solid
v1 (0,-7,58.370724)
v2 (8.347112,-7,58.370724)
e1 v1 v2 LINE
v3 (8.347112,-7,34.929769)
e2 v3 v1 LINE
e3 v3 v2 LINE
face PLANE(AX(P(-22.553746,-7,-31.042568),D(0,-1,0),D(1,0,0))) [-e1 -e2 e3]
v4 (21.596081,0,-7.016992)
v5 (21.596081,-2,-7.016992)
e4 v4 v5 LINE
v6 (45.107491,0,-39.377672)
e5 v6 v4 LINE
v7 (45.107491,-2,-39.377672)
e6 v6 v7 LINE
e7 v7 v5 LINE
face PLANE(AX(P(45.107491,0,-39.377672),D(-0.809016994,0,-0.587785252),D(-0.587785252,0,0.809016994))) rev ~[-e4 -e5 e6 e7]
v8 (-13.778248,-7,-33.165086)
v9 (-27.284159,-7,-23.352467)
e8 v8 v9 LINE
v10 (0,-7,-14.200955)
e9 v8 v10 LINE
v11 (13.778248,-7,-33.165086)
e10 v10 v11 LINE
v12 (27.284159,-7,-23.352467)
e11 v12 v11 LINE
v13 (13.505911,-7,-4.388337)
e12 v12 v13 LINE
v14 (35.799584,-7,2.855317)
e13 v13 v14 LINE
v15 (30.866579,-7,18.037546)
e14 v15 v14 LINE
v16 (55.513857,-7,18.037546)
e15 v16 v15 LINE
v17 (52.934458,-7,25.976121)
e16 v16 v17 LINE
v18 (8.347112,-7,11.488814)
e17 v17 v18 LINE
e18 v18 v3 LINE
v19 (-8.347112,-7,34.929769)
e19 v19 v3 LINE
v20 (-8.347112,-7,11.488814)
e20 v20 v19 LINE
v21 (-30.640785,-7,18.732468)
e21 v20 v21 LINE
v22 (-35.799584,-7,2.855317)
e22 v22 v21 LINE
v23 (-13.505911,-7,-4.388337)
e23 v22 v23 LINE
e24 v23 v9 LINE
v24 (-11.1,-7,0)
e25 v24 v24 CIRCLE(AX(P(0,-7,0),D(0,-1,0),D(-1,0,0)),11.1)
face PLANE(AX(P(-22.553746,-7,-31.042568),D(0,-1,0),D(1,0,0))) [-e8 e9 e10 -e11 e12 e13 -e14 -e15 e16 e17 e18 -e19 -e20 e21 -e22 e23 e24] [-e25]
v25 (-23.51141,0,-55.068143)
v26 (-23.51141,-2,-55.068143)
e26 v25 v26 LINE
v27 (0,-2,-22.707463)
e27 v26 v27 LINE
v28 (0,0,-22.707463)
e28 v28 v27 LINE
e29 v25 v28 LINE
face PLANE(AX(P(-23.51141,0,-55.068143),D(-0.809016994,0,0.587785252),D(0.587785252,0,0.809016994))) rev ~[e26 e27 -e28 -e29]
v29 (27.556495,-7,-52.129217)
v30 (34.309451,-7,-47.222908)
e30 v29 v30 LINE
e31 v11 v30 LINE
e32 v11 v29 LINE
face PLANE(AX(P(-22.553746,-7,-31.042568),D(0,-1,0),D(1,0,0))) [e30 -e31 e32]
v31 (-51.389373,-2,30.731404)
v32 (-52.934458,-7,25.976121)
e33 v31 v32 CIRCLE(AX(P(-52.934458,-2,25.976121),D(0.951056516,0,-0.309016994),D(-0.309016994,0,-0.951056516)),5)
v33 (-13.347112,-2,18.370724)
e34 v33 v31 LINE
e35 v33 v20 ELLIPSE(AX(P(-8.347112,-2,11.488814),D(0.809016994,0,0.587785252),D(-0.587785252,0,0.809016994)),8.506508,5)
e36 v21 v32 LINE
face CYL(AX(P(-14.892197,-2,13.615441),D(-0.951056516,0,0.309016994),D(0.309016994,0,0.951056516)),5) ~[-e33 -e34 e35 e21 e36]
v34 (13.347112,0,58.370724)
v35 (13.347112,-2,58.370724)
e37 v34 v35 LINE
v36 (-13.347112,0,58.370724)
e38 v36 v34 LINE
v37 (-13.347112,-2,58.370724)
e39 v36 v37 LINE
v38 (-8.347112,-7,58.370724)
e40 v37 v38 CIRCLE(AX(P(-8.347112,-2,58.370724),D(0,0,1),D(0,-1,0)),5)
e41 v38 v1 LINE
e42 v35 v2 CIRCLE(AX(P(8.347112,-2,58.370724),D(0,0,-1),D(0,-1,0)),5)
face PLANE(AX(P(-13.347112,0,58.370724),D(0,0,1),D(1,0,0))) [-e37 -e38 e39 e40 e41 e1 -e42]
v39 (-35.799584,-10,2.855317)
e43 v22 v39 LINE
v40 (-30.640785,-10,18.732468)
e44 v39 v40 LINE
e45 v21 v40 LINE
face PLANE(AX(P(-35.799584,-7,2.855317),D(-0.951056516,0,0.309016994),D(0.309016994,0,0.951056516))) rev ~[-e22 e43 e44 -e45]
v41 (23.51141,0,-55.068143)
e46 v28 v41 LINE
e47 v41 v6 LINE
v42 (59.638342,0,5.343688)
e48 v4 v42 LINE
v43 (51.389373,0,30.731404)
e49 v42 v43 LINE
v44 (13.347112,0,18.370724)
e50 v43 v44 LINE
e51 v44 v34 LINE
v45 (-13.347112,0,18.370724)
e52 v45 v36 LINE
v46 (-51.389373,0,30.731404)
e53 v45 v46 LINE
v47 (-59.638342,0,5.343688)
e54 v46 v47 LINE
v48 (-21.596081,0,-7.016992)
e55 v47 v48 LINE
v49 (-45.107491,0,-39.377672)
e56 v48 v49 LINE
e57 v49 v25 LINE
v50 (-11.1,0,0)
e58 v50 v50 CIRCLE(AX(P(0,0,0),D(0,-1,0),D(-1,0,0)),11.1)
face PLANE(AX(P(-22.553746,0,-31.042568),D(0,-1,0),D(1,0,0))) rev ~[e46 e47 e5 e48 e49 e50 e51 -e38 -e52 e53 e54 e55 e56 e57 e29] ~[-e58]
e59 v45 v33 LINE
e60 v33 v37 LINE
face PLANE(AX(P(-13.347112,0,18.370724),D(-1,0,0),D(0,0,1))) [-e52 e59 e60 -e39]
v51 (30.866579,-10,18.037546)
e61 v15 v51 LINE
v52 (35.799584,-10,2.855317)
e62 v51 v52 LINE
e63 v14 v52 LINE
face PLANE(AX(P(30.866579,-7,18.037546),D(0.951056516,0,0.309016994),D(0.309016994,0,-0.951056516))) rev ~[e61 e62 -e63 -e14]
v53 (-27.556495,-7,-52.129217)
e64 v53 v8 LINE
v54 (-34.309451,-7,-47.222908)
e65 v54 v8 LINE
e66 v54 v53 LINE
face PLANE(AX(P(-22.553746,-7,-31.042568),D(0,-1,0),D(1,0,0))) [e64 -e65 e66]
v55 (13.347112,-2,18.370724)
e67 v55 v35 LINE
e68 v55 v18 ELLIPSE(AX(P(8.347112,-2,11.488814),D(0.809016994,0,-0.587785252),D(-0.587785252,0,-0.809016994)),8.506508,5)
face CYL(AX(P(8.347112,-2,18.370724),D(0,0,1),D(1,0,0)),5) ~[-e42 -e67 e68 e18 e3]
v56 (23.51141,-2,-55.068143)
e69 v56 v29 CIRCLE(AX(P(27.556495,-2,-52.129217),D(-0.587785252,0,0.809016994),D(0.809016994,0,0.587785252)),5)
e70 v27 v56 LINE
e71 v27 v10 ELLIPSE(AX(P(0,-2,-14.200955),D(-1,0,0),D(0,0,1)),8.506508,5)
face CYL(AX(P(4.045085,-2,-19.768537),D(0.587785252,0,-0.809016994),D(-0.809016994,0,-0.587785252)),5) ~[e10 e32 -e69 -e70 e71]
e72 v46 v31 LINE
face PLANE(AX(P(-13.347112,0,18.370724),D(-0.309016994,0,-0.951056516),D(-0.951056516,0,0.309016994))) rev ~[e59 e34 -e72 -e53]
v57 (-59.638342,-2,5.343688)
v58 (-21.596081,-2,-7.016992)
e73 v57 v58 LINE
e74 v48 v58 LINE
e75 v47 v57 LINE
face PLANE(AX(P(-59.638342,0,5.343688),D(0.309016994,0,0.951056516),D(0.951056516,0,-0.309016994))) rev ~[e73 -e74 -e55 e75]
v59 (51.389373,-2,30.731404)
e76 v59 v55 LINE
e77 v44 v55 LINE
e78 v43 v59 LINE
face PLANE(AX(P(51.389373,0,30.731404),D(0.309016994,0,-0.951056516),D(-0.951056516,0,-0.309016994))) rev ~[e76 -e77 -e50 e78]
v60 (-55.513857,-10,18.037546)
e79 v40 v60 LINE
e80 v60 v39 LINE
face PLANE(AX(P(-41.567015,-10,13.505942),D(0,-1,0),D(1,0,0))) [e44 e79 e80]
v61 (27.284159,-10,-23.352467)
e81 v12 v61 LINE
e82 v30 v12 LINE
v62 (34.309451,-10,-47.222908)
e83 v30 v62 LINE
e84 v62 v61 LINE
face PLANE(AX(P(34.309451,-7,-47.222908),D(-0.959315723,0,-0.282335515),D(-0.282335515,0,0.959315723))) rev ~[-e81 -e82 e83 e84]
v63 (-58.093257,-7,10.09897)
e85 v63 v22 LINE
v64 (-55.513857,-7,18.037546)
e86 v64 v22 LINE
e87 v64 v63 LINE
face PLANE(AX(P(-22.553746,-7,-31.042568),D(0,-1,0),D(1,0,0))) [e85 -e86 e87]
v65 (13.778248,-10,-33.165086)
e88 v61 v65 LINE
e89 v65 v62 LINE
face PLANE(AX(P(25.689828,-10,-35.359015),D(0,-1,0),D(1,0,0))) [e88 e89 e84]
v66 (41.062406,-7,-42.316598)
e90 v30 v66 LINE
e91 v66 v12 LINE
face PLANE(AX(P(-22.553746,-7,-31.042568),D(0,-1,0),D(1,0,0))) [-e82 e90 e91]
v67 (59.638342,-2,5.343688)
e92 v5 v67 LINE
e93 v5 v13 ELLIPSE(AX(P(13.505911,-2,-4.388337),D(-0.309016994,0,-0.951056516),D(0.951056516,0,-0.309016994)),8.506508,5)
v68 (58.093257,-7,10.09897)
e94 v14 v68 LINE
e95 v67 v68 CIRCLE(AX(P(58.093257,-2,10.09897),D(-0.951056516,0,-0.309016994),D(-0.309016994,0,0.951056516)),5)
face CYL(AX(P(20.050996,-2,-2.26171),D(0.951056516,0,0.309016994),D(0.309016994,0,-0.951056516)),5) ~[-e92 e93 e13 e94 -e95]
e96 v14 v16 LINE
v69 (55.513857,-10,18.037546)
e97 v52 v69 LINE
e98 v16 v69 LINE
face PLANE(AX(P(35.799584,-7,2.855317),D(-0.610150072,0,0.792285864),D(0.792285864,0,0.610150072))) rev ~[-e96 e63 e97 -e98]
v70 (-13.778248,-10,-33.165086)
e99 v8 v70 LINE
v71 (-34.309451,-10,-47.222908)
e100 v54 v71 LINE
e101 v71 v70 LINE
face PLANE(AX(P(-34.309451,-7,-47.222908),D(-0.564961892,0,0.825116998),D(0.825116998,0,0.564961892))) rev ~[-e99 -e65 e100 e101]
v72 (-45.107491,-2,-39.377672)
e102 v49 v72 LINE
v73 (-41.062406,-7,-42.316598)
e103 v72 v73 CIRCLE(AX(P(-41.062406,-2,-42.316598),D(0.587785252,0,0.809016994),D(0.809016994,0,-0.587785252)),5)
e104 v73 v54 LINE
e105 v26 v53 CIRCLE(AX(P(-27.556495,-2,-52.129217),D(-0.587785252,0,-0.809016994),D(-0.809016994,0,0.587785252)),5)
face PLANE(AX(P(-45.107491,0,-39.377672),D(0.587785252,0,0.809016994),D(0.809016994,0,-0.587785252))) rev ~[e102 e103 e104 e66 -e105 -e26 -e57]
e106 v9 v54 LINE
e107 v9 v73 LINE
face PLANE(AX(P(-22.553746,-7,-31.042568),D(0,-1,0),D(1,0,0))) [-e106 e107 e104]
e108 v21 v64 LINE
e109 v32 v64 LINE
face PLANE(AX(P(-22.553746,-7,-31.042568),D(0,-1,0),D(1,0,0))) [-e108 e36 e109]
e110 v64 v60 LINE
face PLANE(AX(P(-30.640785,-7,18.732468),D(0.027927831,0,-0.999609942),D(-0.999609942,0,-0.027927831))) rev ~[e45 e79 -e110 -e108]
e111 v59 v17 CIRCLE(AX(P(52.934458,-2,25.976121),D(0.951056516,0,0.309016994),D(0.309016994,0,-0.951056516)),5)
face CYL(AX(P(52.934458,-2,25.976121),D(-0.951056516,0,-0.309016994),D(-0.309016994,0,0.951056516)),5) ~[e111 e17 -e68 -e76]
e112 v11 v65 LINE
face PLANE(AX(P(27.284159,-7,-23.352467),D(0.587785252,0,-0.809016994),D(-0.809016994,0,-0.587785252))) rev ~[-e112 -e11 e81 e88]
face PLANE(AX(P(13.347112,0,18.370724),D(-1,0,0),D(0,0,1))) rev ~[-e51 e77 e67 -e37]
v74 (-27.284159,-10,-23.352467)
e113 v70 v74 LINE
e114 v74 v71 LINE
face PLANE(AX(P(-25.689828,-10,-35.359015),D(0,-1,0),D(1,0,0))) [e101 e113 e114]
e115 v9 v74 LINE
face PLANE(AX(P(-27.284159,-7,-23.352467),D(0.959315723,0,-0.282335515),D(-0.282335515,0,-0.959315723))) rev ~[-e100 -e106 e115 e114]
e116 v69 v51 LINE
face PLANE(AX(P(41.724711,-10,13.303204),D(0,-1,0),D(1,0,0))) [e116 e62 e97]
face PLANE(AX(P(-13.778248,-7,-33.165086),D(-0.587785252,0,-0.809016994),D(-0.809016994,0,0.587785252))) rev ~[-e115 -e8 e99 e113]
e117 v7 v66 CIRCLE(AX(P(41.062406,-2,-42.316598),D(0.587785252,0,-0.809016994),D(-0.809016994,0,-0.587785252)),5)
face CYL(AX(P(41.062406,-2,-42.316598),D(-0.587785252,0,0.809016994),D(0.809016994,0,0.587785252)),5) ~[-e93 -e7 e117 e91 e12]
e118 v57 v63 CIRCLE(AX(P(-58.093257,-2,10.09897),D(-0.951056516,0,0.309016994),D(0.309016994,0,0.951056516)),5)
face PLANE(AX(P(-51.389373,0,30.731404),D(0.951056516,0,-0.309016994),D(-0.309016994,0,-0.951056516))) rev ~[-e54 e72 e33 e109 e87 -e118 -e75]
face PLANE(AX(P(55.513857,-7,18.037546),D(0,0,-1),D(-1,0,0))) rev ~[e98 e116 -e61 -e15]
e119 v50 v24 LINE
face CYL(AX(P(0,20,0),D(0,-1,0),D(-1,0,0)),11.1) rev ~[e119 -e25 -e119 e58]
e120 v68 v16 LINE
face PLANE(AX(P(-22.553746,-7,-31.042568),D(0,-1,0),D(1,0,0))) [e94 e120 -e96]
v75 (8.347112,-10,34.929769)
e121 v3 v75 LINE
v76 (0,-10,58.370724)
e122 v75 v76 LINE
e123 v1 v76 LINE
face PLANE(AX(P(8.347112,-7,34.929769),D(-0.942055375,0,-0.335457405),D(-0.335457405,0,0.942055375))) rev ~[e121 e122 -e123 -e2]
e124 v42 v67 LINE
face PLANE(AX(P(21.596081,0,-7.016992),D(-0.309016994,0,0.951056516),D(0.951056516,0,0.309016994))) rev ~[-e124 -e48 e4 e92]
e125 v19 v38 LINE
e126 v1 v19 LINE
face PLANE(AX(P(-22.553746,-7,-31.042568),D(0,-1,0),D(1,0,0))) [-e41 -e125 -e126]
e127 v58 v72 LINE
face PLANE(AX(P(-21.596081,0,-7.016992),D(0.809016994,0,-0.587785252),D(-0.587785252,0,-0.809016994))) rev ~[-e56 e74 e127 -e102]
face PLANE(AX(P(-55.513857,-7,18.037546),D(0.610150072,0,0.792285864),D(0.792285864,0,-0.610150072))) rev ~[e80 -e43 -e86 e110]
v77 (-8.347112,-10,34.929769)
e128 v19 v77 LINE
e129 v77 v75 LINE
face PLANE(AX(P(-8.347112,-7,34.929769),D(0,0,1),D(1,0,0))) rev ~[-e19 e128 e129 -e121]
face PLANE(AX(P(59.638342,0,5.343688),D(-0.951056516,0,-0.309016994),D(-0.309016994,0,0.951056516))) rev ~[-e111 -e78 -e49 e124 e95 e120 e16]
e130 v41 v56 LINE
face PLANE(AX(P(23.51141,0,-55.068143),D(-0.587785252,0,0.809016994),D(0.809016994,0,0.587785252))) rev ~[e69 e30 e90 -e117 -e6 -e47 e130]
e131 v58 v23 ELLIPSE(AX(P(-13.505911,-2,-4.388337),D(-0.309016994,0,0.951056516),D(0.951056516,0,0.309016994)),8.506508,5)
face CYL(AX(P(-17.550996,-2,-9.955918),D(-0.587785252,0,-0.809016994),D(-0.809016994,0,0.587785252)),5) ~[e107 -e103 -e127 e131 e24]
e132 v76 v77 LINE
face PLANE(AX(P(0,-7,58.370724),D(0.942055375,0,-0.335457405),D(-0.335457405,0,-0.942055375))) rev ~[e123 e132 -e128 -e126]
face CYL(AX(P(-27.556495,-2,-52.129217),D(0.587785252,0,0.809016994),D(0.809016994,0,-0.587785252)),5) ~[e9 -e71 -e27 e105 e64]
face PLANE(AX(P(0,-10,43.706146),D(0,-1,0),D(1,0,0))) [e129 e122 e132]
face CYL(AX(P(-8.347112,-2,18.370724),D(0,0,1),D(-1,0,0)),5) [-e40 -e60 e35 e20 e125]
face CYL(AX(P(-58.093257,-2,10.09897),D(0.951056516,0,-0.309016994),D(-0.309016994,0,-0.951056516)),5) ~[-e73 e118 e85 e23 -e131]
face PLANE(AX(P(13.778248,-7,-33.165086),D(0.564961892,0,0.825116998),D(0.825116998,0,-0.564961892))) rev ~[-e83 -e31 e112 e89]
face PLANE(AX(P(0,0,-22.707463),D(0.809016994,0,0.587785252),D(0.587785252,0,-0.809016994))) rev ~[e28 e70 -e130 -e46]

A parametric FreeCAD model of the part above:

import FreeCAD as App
import Part
import Sketcher
Q = App.Units.Quantity


def edges_at(feature, points):
    """Names of the edges that pass closest to the given points."""
    edges = feature.Shape.Edges
    near = lambda p: min(range(len(edges)), key=lambda i: edges[i].distToShape(Part.Vertex(*p))[0])
    return sorted({f"Edge{near(p) + 1}" for p in points})

doc = App.newDocument("Part")
body = doc.addObject("PartDesign::Body", "Body")

# Sketch on XZ plane
sketch1 = doc.addObject("Sketcher::SketchObject", "Sketch")
body.addObject(sketch1)
sketch1.AttachmentSupport = (doc.XZ_Plane, [""])
sketch1.MapMode = "FlatFace"
sketch1.addGeometry([
    Part.LineSegment(App.Vector(-24, -55, 0), App.Vector(0, -23, 0)),  # 0
    Part.LineSegment(App.Vector(0, -23, 0), App.Vector(24, -55, 0)),  # 1
    Part.LineSegment(App.Vector(24, -55, 0), App.Vector(45, -39, 0)),  # 2
    Part.LineSegment(App.Vector(45, -39, 0), App.Vector(22, -7, 0)),  # 3
    Part.LineSegment(App.Vector(22, -7, 0), App.Vector(60, 5, 0)),  # 4
    Part.LineSegment(App.Vector(60, 5, 0), App.Vector(51, 31, 0)),  # 5
    Part.LineSegment(App.Vector(51, 31, 0), App.Vector(13, 18, 0)),  # 6
    Part.LineSegment(App.Vector(13, 18, 0), App.Vector(13, 58, 0)),  # 7
    Part.LineSegment(App.Vector(13, 58, 0), App.Vector(-13, 58, 0)),  # 8
    Part.LineSegment(App.Vector(-13, 58, 0), App.Vector(-13, 18, 0)),  # 9
    Part.LineSegment(App.Vector(-13, 18, 0), App.Vector(-51, 31, 0)),  # 10
    Part.LineSegment(App.Vector(-51, 31, 0), App.Vector(-60, 5, 0)),  # 11
    Part.LineSegment(App.Vector(-60, 5, 0), App.Vector(-22, -7, 0)),  # 12
    Part.LineSegment(App.Vector(-22, -7, 0), App.Vector(-45, -39, 0)),  # 13
    Part.LineSegment(App.Vector(-45, -39, 0), App.Vector(-24, -55, 0)),  # 14
], False)
sketch1.addConstraint([
    Sketcher.Constraint("Coincident", 0, 2, 1, 1),
    Sketcher.Constraint("Coincident", 1, 2, 2, 1),
    Sketcher.Constraint("Coincident", 2, 2, 3, 1),
    Sketcher.Constraint("Coincident", 3, 2, 4, 1),
    Sketcher.Constraint("Coincident", 4, 2, 5, 1),
    Sketcher.Constraint("Coincident", 5, 2, 6, 1),
    Sketcher.Constraint("Coincident", 6, 2, 7, 1),
    Sketcher.Constraint("Coincident", 7, 2, 8, 1),
    Sketcher.Constraint("Coincident", 8, 2, 9, 1),
    Sketcher.Constraint("Coincident", 9, 2, 10, 1),
    Sketcher.Constraint("Coincident", 10, 2, 11, 1),
    Sketcher.Constraint("Coincident", 11, 2, 12, 1),
    Sketcher.Constraint("Coincident", 12, 2, 13, 1),
    Sketcher.Constraint("Coincident", 13, 2, 14, 1),
    Sketcher.Constraint("Coincident", 14, 2, 0, 1),
    Sketcher.Constraint("Vertical", 7),
    Sketcher.Constraint("Horizontal", 8),
    Sketcher.Constraint("Vertical", 9),
    Sketcher.Constraint("Symmetric", 6, 2, 9, 2, -2),
    Sketcher.Constraint("Symmetric", 5, 2, 10, 2, -2),
    Sketcher.Constraint("Symmetric", 4, 2, 11, 2, -2),
    Sketcher.Constraint("Symmetric", 3, 2, 12, 2, -2),
    Sketcher.Constraint("Symmetric", 2, 2, 13, 2, -2),
    Sketcher.Constraint("Symmetric", 1, 2, 14, 2, -2),
    Sketcher.Constraint("PointOnObject", 0, 2, -2),
    Sketcher.Constraint("Perpendicular", 1, 2),
    Sketcher.Constraint("Perpendicular", 2, 3),
    Sketcher.Constraint("Perpendicular", 4, 5),
    Sketcher.Constraint("Perpendicular", 5, 6),
    Sketcher.Constraint("Equal", 1, 3),
    Sketcher.Constraint("Equal", 3, 4),
    Sketcher.Constraint("Equal", 2, 5),
    Sketcher.Constraint("Equal", 4, 6),
    Sketcher.Constraint("DistanceY", 7, 1, 7, 2, 40.0),
    Sketcher.Constraint("Angle", 0, Q("54 deg")),
    Sketcher.Constraint("Angle", 4, Q("18 deg")),
    Sketcher.Constraint("Distance", 0, 40.0),
    Sketcher.Constraint("DistanceX", 8, 2, 8, 1, 26.694224),
    Sketcher.Constraint("DistanceY", 2, 2, -1, 1, 39.377672),
])
pad1 = doc.addObject("PartDesign::Pad", "Pad")
body.addObject(pad1)
pad1.Profile = sketch1
pad1.Length = 7
doc.recompute()

fillet = doc.addObject("PartDesign::Fillet", "Fillet")
body.addObject(fillet)
fillet.Base = (pad1, edges_at(pad1, [
    (-40.617, -7, -0.837),
    (-32.368, -7, 24.551),
    (-11.756, -7, -38.888),
    (40.617, -7, -0.837),
    (-33.352, -7, -23.197),
    (33.352, -7, -23.197),
    (11.756, -7, -38.888),
    (32.368, -7, 24.551),
    (13.347, -7, 38.371),
    (-13.347, -7, 38.371),
]))
fillet.Radius = 5

# Sketch on XZ plane
sketch2 = doc.addObject("Sketcher::SketchObject", "Sketch001")
body.addObject(sketch2)
sketch2.AttachmentSupport = (doc.XZ_Plane, [""])
sketch2.MapMode = "FlatFace"
sketch2.AttachmentOffset = App.Placement(App.Vector(0, 0, 7), App.Rotation())
sketch2.addGeometry([
    Part.LineSegment(App.Vector(-56, 18, 0), App.Vector(-36, 3, 0)),  # 0
    Part.LineSegment(App.Vector(-36, 3, 0), App.Vector(-31, 19, 0)),  # 1
    Part.LineSegment(App.Vector(-31, 19, 0), App.Vector(-56, 18, 0)),  # 2
    Part.LineSegment(App.Vector(0, 58, 0), App.Vector(-8, 35, 0)),  # 3
    Part.LineSegment(App.Vector(-8, 35, 0), App.Vector(8, 35, 0)),  # 4
    Part.LineSegment(App.Vector(8, 35, 0), App.Vector(0, 58, 0)),  # 5
    Part.LineSegment(App.Vector(56, 18, 0), App.Vector(31, 18, 0)),  # 6
    Part.LineSegment(App.Vector(31, 18, 0), App.Vector(36, 3, 0)),  # 7
    Part.LineSegment(App.Vector(36, 3, 0), App.Vector(56, 18, 0)),  # 8
    Part.LineSegment(App.Vector(27, -23, 0), App.Vector(14, -33, 0)),  # 9
    Part.LineSegment(App.Vector(14, -33, 0), App.Vector(34, -47, 0)),  # 10
    Part.LineSegment(App.Vector(34, -47, 0), App.Vector(27, -23, 0)),  # 11
    Part.LineSegment(App.Vector(-14, -33, 0), App.Vector(-27, -23, 0)),  # 12
    Part.LineSegment(App.Vector(-27, -23, 0), App.Vector(-34, -47, 0)),  # 13
    Part.LineSegment(App.Vector(-34, -47, 0), App.Vector(-14, -33, 0)),  # 14
], False)
sketch2.addConstraint([
    Sketcher.Constraint("Coincident", 0, 2, 1, 1),
    Sketcher.Constraint("Coincident", 1, 2, 2, 1),
    Sketcher.Constraint("Coincident", 2, 2, 0, 1),
    Sketcher.Constraint("Coincident", 3, 2, 4, 1),
    Sketcher.Constraint("Coincident", 4, 2, 5, 1),
    Sketcher.Constraint("Coincident", 5, 2, 3, 1),
    Sketcher.Constraint("Coincident", 6, 2, 7, 1),
    Sketcher.Constraint("Coincident", 7, 2, 8, 1),
    Sketcher.Constraint("Coincident", 8, 2, 6, 1),
    Sketcher.Constraint("Coincident", 9, 2, 10, 1),
    Sketcher.Constraint("Coincident", 10, 2, 11, 1),
    Sketcher.Constraint("Coincident", 11, 2, 9, 1),
    Sketcher.Constraint("Coincident", 12, 2, 13, 1),
    Sketcher.Constraint("Coincident", 13, 2, 14, 1),
    Sketcher.Constraint("Coincident", 14, 2, 12, 1),
    Sketcher.Constraint("Horizontal", 4),
    Sketcher.Constraint("Horizontal", 6),
    Sketcher.Constraint("Symmetric", 0, 2, 7, 2, -2),
    Sketcher.Constraint("Symmetric", 2, 2, 8, 2, -2),
    Sketcher.Constraint("Symmetric", 11, 2, 12, 2, -2),
    Sketcher.Constraint("Symmetric", 10, 2, 13, 2, -2),
    Sketcher.Constraint("Symmetric", 9, 2, 14, 2, -2),
    Sketcher.Constraint("PointOnObject", 5, 2, -2),
    Sketcher.Constraint("Equal", 0, 2),
    Sketcher.Constraint("Equal", 2, 3),
    Sketcher.Constraint("Equal", 3, 5),
    Sketcher.Constraint("Equal", 1, 9),
    Sketcher.Constraint("Equal", 8, 10),
    Sketcher.Constraint("Equal", 10, 11),
    Sketcher.Constraint("Angle", 1, Q("72 deg")),
    Sketcher.Constraint("Angle", 7, Q("-72 deg")),
    Sketcher.Constraint("Angle", 9, Q("-144 deg")),
    Sketcher.Constraint("DistanceX", 6, 2, 6, 1, 24.647278),
    Sketcher.Constraint("DistanceX", 0, 2, 1, 2, 5.158799),
    Sketcher.Constraint("DistanceY", 1, 2, 3, 2, 16.197301),
    Sketcher.Constraint("DistanceX", 11, 2, 8, 2, 28.229699),
    Sketcher.Constraint("DistanceX", 13, 2, 9, 2, 48.087698),
    Sketcher.Constraint("DistanceX", 4, 1, 4, 2, 16.694224),
    Sketcher.Constraint("DistanceY", -1, 1, 3, 2, 34.929769),
    Sketcher.Constraint("DistanceY", 9, 2, 6, 2, 51.202632),
])
pad2 = doc.addObject("PartDesign::Pad", "Pad001")
body.addObject(pad2)
pad2.Profile = sketch2
pad2.Length = 3

# Sketch on XZ plane
sketch3 = doc.addObject("Sketcher::SketchObject", "Sketch002")
body.addObject(sketch3)
sketch3.AttachmentSupport = (doc.XZ_Plane, [""])
sketch3.MapMode = "FlatFace"
sketch3.addGeometry(Part.Circle(App.Vector(0, 0, 0), App.Vector(0, 0, 1), 11), False)
sketch3.addConstraint([
    Sketcher.Constraint("Coincident", 0, 3, -1, 1),
    Sketcher.Constraint("Diameter", 0, 22.2),
])
doc.recompute()
hole = doc.addObject("PartDesign::Hole", "Hole")
body.addObject(hole)
hole.Profile = sketch3
hole.ThreadType = "None"
hole.Diameter = 22.2
hole.DepthType = "Dimension"
hole.Depth = 20
hole.DrillPoint = "Angled"
hole.DrillPointAngle = 118
hole.Reversed = True

doc.recompute()
